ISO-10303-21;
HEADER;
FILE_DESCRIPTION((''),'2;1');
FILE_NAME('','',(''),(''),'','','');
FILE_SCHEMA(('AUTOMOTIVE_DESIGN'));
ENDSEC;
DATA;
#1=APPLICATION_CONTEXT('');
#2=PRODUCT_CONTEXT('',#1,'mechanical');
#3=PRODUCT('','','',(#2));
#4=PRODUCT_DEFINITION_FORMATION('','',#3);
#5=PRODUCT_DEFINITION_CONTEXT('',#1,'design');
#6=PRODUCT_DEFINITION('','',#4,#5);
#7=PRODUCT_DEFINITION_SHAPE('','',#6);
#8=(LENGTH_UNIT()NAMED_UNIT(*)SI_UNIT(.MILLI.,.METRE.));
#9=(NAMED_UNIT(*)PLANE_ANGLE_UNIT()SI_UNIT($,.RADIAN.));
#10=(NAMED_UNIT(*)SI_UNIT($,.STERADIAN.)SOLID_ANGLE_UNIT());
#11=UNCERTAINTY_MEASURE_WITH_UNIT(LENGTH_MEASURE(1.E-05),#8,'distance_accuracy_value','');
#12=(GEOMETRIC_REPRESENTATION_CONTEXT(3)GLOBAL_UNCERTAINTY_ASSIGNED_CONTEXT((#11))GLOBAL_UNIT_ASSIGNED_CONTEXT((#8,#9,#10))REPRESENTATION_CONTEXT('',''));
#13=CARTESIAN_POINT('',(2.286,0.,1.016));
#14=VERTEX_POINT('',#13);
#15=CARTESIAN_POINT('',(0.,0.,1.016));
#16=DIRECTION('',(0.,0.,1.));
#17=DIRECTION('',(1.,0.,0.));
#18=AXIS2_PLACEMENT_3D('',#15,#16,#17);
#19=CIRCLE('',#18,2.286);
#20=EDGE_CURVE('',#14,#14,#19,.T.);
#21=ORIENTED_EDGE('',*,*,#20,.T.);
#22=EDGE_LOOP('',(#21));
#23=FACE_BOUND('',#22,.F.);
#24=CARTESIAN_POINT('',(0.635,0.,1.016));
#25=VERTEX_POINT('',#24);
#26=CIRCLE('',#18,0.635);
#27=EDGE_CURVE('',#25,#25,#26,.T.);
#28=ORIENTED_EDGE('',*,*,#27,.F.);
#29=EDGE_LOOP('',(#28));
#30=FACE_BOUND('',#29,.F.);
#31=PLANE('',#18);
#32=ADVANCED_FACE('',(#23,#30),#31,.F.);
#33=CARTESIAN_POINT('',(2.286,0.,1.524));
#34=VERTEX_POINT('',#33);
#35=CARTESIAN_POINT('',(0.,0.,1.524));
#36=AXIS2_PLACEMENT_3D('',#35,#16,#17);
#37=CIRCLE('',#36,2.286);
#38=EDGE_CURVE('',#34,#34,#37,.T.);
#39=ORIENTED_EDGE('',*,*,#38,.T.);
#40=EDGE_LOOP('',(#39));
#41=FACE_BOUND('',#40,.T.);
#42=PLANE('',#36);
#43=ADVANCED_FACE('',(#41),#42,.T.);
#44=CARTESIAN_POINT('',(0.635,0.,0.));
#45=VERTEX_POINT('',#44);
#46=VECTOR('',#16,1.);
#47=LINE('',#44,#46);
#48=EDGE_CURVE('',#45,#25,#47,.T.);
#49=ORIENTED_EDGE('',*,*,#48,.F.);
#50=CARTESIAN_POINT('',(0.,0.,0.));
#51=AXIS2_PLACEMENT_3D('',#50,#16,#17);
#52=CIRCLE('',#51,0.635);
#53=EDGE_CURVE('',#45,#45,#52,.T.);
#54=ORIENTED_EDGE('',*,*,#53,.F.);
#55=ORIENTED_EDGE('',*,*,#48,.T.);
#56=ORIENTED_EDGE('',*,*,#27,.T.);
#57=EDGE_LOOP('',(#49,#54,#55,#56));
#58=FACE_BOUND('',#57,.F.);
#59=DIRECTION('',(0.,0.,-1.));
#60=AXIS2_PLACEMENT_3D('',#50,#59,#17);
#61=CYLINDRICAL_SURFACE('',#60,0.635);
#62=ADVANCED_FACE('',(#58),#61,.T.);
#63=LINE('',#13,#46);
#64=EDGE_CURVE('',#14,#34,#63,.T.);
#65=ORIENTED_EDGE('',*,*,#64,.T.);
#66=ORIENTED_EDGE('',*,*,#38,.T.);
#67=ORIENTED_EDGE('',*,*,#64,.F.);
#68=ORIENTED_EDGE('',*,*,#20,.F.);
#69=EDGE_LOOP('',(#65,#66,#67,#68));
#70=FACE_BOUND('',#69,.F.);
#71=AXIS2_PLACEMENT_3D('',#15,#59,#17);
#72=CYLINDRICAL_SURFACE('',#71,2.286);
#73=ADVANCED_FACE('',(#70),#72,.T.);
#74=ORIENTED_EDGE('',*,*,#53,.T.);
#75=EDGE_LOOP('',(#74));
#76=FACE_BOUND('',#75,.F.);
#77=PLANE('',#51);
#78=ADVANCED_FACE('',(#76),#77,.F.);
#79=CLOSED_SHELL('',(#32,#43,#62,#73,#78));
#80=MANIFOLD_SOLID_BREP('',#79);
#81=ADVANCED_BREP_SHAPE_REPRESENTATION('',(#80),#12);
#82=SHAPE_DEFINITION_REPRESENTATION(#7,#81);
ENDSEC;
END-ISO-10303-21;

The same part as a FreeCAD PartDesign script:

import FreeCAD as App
import Part
import Sketcher
Q = App.Units.Quantity

doc = App.newDocument("Part")
body = doc.addObject("PartDesign::Body", "Body")

sketch1 = body.newObject("Sketcher::SketchObject", "Sketch")
sketch1.AttachmentSupport = (doc.getObject("XY_Plane"), [""])
sketch1.MapMode = "FlatFace"
sketch1.addGeometry(Part.Circle(App.Vector(0, 0, 0), App.Vector(0, 0, 1), 0.6), False)
sketch1.addConstraint(Sketcher.Constraint("Coincident", 0, 3, -1, 1))
sketch1.addConstraint(Sketcher.Constraint("Diameter", 0, Q("0.05 in")))
pad1 = body.newObject("PartDesign::Pad", "Pad")
pad1.Profile = sketch1
pad1.Length = Q("0.04 in")

sketch2 = body.newObject("Sketcher::SketchObject", "Sketch001")
sketch2.AttachmentSupport = (doc.getObject("XY_Plane"), [""])
sketch2.MapMode = "FlatFace"
sketch2.AttachmentOffset = App.Placement(App.Vector(0, 0, 0.04 * 25.4), App.Rotation())
sketch2.addGeometry(Part.Circle(App.Vector(0, 0, 0), App.Vector(0, 0, 1), 2.3), False)
sketch2.addConstraint(Sketcher.Constraint("Coincident", 0, 3, -1, 1))
sketch2.addConstraint(Sketcher.Constraint("Diameter", 0, Q("0.18 in")))
pad2 = body.newObject("PartDesign::Pad", "Pad001")
pad2.Profile = sketch2
pad2.Length = Q("0.02 in")

doc.recompute()
